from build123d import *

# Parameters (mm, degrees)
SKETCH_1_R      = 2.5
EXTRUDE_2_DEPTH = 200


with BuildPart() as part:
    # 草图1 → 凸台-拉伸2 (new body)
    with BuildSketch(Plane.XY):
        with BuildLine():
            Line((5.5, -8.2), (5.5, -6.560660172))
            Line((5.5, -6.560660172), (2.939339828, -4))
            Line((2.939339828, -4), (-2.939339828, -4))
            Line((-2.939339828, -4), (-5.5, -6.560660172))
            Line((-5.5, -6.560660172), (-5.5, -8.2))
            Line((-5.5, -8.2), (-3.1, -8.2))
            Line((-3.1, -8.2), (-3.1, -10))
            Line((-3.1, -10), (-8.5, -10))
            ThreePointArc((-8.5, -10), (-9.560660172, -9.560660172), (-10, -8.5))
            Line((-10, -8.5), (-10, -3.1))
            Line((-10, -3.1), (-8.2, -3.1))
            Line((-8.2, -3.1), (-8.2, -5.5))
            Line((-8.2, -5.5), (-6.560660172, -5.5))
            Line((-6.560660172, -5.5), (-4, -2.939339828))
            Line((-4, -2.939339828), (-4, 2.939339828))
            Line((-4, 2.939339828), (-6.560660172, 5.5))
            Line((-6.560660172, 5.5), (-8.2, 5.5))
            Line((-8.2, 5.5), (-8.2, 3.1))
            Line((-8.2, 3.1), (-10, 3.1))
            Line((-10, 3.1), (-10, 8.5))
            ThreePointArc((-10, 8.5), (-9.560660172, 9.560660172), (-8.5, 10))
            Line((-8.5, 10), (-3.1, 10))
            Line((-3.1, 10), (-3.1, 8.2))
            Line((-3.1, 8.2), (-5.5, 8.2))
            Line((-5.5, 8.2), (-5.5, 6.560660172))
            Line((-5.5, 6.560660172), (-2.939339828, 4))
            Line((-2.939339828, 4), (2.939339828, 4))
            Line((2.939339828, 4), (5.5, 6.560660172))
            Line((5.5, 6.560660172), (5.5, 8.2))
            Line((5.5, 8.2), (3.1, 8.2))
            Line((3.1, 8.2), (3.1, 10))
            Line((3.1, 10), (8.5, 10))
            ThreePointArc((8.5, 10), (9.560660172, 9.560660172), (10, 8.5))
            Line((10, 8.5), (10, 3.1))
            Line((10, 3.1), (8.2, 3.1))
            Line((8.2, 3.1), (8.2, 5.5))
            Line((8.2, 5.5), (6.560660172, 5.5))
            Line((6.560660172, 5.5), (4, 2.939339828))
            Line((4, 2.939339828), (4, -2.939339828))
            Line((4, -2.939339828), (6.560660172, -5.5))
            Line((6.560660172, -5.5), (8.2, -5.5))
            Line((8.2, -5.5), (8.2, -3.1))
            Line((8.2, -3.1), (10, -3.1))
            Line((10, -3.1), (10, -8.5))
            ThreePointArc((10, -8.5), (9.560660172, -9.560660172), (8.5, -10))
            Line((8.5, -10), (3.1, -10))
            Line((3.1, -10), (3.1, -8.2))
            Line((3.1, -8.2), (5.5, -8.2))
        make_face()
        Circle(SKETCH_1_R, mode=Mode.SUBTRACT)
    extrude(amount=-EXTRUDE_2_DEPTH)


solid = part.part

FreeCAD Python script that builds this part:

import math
import FreeCAD as App
import Part
import Sketcher

V = App.Vector

doc = App.newDocument("Part")
params = doc.addObject("Spreadsheet::Sheet", "Params")
for row, (alias, value) in enumerate([
    ("sketch1_diameter", "5 mm"),
    ("sketch1_radius", "1.5 mm"),
    ("sketch1_width", "2.4 mm"),
    ("sketch1_width2", "5.4 mm"),
    ("sketch1_width3", "1.8 mm"),
    ("pad1_length", "200 mm"),
], start=1):
    params.set(f"A{row}", alias)
    params.set(f"B{row}", "=" + value)
    params.setAlias(f"B{row}", alias)

body = doc.addObject("PartDesign::Body", "Body")

sketch1 = body.newObject("Sketcher::SketchObject", "Sketch")
sketch1.AttachmentSupport = (doc.getObject("XY_Plane"), [""])
sketch1.MapMode = "FlatFace"
sketch1.addGeometry(Part.LineSegment(V(5.5, -6.6, 0), V(5.5, -8.2, 0)), False)
sketch1.addGeometry(Part.LineSegment(V(5.5, -8.2, 0), V(3.1, -8.2, 0)), False)
sketch1.addGeometry(Part.LineSegment(V(3.1, -8.2, 0), V(3.1, -10, 0)), False)
sketch1.addGeometry(Part.LineSegment(V(3.1, -10, 0), V(8.5, -10, 0)), False)
sketch1.addGeometry(Part.ArcOfCircle(Part.Circle(V(8.5, -8.5, 0), V(0, 0, 1), 1.5), math.radians(-90), math.radians(0)), False)
sketch1.addGeometry(Part.LineSegment(V(10, -8.5, 0), V(10, -3.1, 0)), False)
sketch1.addGeometry(Part.LineSegment(V(10, -3.1, 0), V(8.2, -3.1, 0)), False)
sketch1.addGeometry(Part.LineSegment(V(8.2, -3.1, 0), V(8.2, -5.5, 0)), False)
sketch1.addGeometry(Part.LineSegment(V(8.2, -5.5, 0), V(6.6, -5.5, 0)), False)
sketch1.addGeometry(Part.LineSegment(V(6.6, -5.5, 0), V(4, -2.9, 0)), False)
sketch1.addGeometry(Part.LineSegment(V(4, -2.9, 0), V(4, 2.9, 0)), False)
sketch1.addGeometry(Part.LineSegment(V(4, 2.9, 0), V(6.6, 5.5, 0)), False)
sketch1.addGeometry(Part.LineSegment(V(6.6, 5.5, 0), V(8.2, 5.5, 0)), False)
sketch1.addGeometry(Part.LineSegment(V(8.2, 5.5, 0), V(8.2, 3.1, 0)), False)
sketch1.addGeometry(Part.LineSegment(V(8.2, 3.1, 0), V(10, 3.1, 0)), False)
sketch1.addGeometry(Part.LineSegment(V(10, 3.1, 0), V(10, 8.5, 0)), False)
sketch1.addGeometry(Part.ArcOfCircle(Part.Circle(V(8.5, 8.5, 0), V(0, 0, 1), 1.5), math.radians(0), math.radians(90)), False)
sketch1.addGeometry(Part.LineSegment(V(8.5, 10, 0), V(3.1, 10, 0)), False)
sketch1.addGeometry(Part.LineSegment(V(3.1, 10, 0), V(3.1, 8.2, 0)), False)
sketch1.addGeometry(Part.LineSegment(V(3.1, 8.2, 0), V(5.5, 8.2, 0)), False)
sketch1.addGeometry(Part.LineSegment(V(5.5, 8.2, 0), V(5.5, 6.6, 0)), False)
sketch1.addGeometry(Part.LineSegment(V(5.5, 6.6, 0), V(2.9, 4, 0)), False)
sketch1.addGeometry(Part.LineSegment(V(2.9, 4, 0), V(-2.9, 4, 0)), False)
sketch1.addGeometry(Part.LineSegment(V(-2.9, 4, 0), V(-5.5, 6.6, 0)), False)
sketch1.addGeometry(Part.LineSegment(V(-5.5, 6.6, 0), V(-5.5, 8.2, 0)), False)
sketch1.addGeometry(Part.LineSegment(V(-5.5, 8.2, 0), V(-3.1, 8.2, 0)), False)
sketch1.addGeometry(Part.LineSegment(V(-3.1, 8.2, 0), V(-3.1, 10, 0)), False)
sketch1.addGeometry(Part.LineSegment(V(-3.1, 10, 0), V(-8.5, 10, 0)), False)
sketch1.addGeometry(Part.ArcOfCircle(Part.Circle(V(-8.5, 8.5, 0), V(0, 0, 1), 1.5), math.radians(90), math.radians(180)), False)
sketch1.addGeometry(Part.LineSegment(V(-10, 8.5, 0), V(-10, 3.1, 0)), False)
sketch1.addGeometry(Part.LineSegment(V(-10, 3.1, 0), V(-8.2, 3.1, 0)), False)
sketch1.addGeometry(Part.LineSegment(V(-8.2, 3.1, 0), V(-8.2, 5.5, 0)), False)
sketch1.addGeometry(Part.LineSegment(V(-8.2, 5.5, 0), V(-6.6, 5.5, 0)), False)
sketch1.addGeometry(Part.LineSegment(V(-6.6, 5.5, 0), V(-4, 2.9, 0)), False)
sketch1.addGeometry(Part.LineSegment(V(-4, 2.9, 0), V(-4, -2.9, 0)), False)
sketch1.addGeometry(Part.LineSegment(V(-4, -2.9, 0), V(-6.6, -5.5, 0)), False)
sketch1.addGeometry(Part.LineSegment(V(-6.6, -5.5, 0), V(-8.2, -5.5, 0)), False)
sketch1.addGeometry(Part.LineSegment(V(-8.2, -5.5, 0), V(-8.2, -3.1, 0)), False)
sketch1.addGeometry(Part.LineSegment(V(-8.2, -3.1, 0), V(-10, -3.1, 0)), False)
sketch1.addGeometry(Part.LineSegment(V(-10, -3.1, 0), V(-10, -8.5, 0)), False)
sketch1.addGeometry(Part.ArcOfCircle(Part.Circle(V(-8.5, -8.5, 0), V(0, 0, 1), 1.5), math.radians(180), math.radians(270)), False)
sketch1.addGeometry(Part.LineSegment(V(-8.5, -10, 0), V(-3.1, -10, 0)), False)
sketch1.addGeometry(Part.LineSegment(V(-3.1, -10, 0), V(-3.1, -8.2, 0)), False)
sketch1.addGeometry(Part.LineSegment(V(-3.1, -8.2, 0), V(-5.5, -8.2, 0)), False)
sketch1.addGeometry(Part.LineSegment(V(-5.5, -8.2, 0), V(-5.5, -6.6, 0)), False)
sketch1.addGeometry(Part.LineSegment(V(-5.5, -6.6, 0), V(-2.9, -4, 0)), False)
sketch1.addGeometry(Part.LineSegment(V(-2.9, -4, 0), V(2.9, -4, 0)), False)
sketch1.addGeometry(Part.LineSegment(V(2.9, -4, 0), V(5.5, -6.6, 0)), False)
sketch1.addGeometry(Part.Circle(V(0, 0, 0), V(0, 0, 1), 2.5), False)
sketch1.addConstraint(Sketcher.Constraint("Coincident", 0, 2, 1, 1))
sketch1.addConstraint(Sketcher.Constraint("Coincident", 1, 2, 2, 1))
sketch1.addConstraint(Sketcher.Constraint("Coincident", 2, 2, 3, 1))
sketch1.addConstraint(Sketcher.Constraint("Tangent", 3, 2, 4, 1))
sketch1.addConstraint(Sketcher.Constraint("Tangent", 4, 2, 5, 1))
sketch1.addConstraint(Sketcher.Constraint("Coincident", 5, 2, 6, 1))
sketch1.addConstraint(Sketcher.Constraint("Coincident", 6, 2, 7, 1))
sketch1.addConstraint(Sketcher.Constraint("Coincident", 7, 2, 8, 1))
sketch1.addConstraint(Sketcher.Constraint("Coincident", 8, 2, 9, 1))
sketch1.addConstraint(Sketcher.Constraint("Coincident", 9, 2, 10, 1))
sketch1.addConstraint(Sketcher.Constraint("Coincident", 10, 2, 11, 1))
sketch1.addConstraint(Sketcher.Constraint("Coincident", 11, 2, 12, 1))
sketch1.addConstraint(Sketcher.Constraint("Coincident", 12, 2, 13, 1))
sketch1.addConstraint(Sketcher.Constraint("Coincident", 13, 2, 14, 1))
sketch1.addConstraint(Sketcher.Constraint("Coincident", 14, 2, 15, 1))
sketch1.addConstraint(Sketcher.Constraint("Tangent", 15, 2, 16, 1))
sketch1.addConstraint(Sketcher.Constraint("Tangent", 16, 2, 17, 1))
sketch1.addConstraint(Sketcher.Constraint("Coincident", 17, 2, 18, 1))
sketch1.addConstraint(Sketcher.Constraint("Coincident", 18, 2, 19, 1))
sketch1.addConstraint(Sketcher.Constraint("Coincident", 19, 2, 20, 1))
sketch1.addConstraint(Sketcher.Constraint("Coincident", 20, 2, 21, 1))
sketch1.addConstraint(Sketcher.Constraint("Coincident", 21, 2, 22, 1))
sketch1.addConstraint(Sketcher.Constraint("Coincident", 22, 2, 23, 1))
sketch1.addConstraint(Sketcher.Constraint("Coincident", 23, 2, 24, 1))
sketch1.addConstraint(Sketcher.Constraint("Coincident", 24, 2, 25, 1))
sketch1.addConstraint(Sketcher.Constraint("Coincident", 25, 2, 26, 1))
sketch1.addConstraint(Sketcher.Constraint("Coincident", 26, 2, 27, 1))
sketch1.addConstraint(Sketcher.Constraint("Tangent", 27, 2, 28, 1))
sketch1.addConstraint(Sketcher.Constraint("Tangent", 28, 2, 29, 1))
sketch1.addConstraint(Sketcher.Constraint("Coincident", 29, 2, 30, 1))
sketch1.addConstraint(Sketcher.Constraint("Coincident", 30, 2, 31, 1))
sketch1.addConstraint(Sketcher.Constraint("Coincident", 31, 2, 32, 1))
sketch1.addConstraint(Sketcher.Constraint("Coincident", 32, 2, 33, 1))
sketch1.addConstraint(Sketcher.Constraint("Coincident", 33, 2, 34, 1))
sketch1.addConstraint(Sketcher.Constraint("Coincident", 34, 2, 35, 1))
sketch1.addConstraint(Sketcher.Constraint("Coincident", 35, 2, 36, 1))
sketch1.addConstraint(Sketcher.Constraint("Coincident", 36, 2, 37, 1))
sketch1.addConstraint(Sketcher.Constraint("Coincident", 37, 2, 38, 1))
sketch1.addConstraint(Sketcher.Constraint("Coincident", 38, 2, 39, 1))
sketch1.addConstraint(Sketcher.Constraint("Tangent", 39, 2, 40, 1))
sketch1.addConstraint(Sketcher.Constraint("Tangent", 40, 2, 41, 1))
sketch1.addConstraint(Sketcher.Constraint("Coincident", 41, 2, 42, 1))
sketch1.addConstraint(Sketcher.Constraint("Coincident", 42, 2, 43, 1))
sketch1.addConstraint(Sketcher.Constraint("Coincident", 43, 2, 44, 1))
sketch1.addConstraint(Sketcher.Constraint("Coincident", 44, 2, 45, 1))
sketch1.addConstraint(Sketcher.Constraint("Coincident", 45, 2, 46, 1))
sketch1.addConstraint(Sketcher.Constraint("Coincident", 46, 2, 47, 1))
sketch1.addConstraint(Sketcher.Constraint("Coincident", 47, 2, 0, 1))
sketch1.addConstraint(Sketcher.Constraint("Vertical", 0))
sketch1.addConstraint(Sketcher.Constraint("Horizontal", 1))
sketch1.addConstraint(Sketcher.Constraint("Vertical", 2))
sketch1.addConstraint(Sketcher.Constraint("Horizontal", 3))
sketch1.addConstraint(Sketcher.Constraint("Vertical", 5))
sketch1.addConstraint(Sketcher.Constraint("Horizontal", 6))
sketch1.addConstraint(Sketcher.Constraint("Vertical", 7))
sketch1.addConstraint(Sketcher.Constraint("Horizontal", 8))
sketch1.addConstraint(Sketcher.Constraint("Vertical", 10))
sketch1.addConstraint(Sketcher.Constraint("Horizontal", 12))
sketch1.addConstraint(Sketcher.Constraint("Vertical", 13))
sketch1.addConstraint(Sketcher.Constraint("Horizontal", 14))
sketch1.addConstraint(Sketcher.Constraint("Vertical", 15))
sketch1.addConstraint(Sketcher.Constraint("Horizontal", 17))
sketch1.addConstraint(Sketcher.Constraint("Vertical", 18))
sketch1.addConstraint(Sketcher.Constraint("Horizontal", 19))
sketch1.addConstraint(Sketcher.Constraint("Vertical", 20))
sketch1.addConstraint(Sketcher.Constraint("Horizontal", 22))
sketch1.addConstraint(Sketcher.Constraint("Vertical", 24))
sketch1.addConstraint(Sketcher.Constraint("Horizontal", 25))
sketch1.addConstraint(Sketcher.Constraint("Vertical", 26))
sketch1.addConstraint(Sketcher.Constraint("Horizontal", 27))
sketch1.addConstraint(Sketcher.Constraint("Vertical", 29))
sketch1.addConstraint(Sketcher.Constraint("Horizontal", 30))
sketch1.addConstraint(Sketcher.Constraint("Vertical", 31))
sketch1.addConstraint(Sketcher.Constraint("Horizontal", 32))
sketch1.addConstraint(Sketcher.Constraint("Vertical", 34))
sketch1.addConstraint(Sketcher.Constraint("Horizontal", 36))
sketch1.addConstraint(Sketcher.Constraint("Vertical", 37))
sketch1.addConstraint(Sketcher.Constraint("Horizontal", 38))
sketch1.addConstraint(Sketcher.Constraint("Vertical", 39))
sketch1.addConstraint(Sketcher.Constraint("Horizontal", 41))
sketch1.addConstraint(Sketcher.Constraint("Vertical", 42))
sketch1.addConstraint(Sketcher.Constraint("Horizontal", 43))
sketch1.addConstraint(Sketcher.Constraint("Vertical", 44))
sketch1.addConstraint(Sketcher.Constraint("Horizontal", 46))
sketch1.addConstraint(Sketcher.Constraint("Coincident", 48, 3, -1, 1))
sketch1.addConstraint(Sketcher.Constraint("Equal", 4, 16))
sketch1.addConstraint(Sketcher.Constraint("Equal", 16, 28))
sketch1.addConstraint(Sketcher.Constraint("Equal", 28, 40))
sketch1.addConstraint(Sketcher.Constraint("Symmetric", 4, 3, 28, 3, -1, 1))
sketch1.addConstraint(Sketcher.Constraint("Symmetric", 16, 3, 40, 3, -1, 1))
sketch1.addConstraint(Sketcher.Constraint("Symmetric", 0, 2, 24, 2, -1, 1))
sketch1.addConstraint(Sketcher.Constraint("Symmetric", 6, 2, 30, 2, -1, 1))
sketch1.addConstraint(Sketcher.Constraint("Symmetric", 8, 2, 32, 2, -1, 1))
sketch1.addConstraint(Sketcher.Constraint("Symmetric", 9, 2, 33, 2, -1, 1))
sketch1.addConstraint(Sketcher.Constraint("Symmetric", 11, 2, 35, 2, -1, 1))
sketch1.addConstraint(Sketcher.Constraint("Symmetric", 13, 2, 37, 2, -1, 1))
sketch1.addConstraint(Sketcher.Constraint("Symmetric", 18, 2, 42, 2, -1, 1))
sketch1.addConstraint(Sketcher.Constraint("Symmetric", 20, 2, 44, 2, -1, 1))
sketch1.addConstraint(Sketcher.Constraint("Symmetric", 21, 2, 45, 2, -1, 1))
sketch1.addConstraint(Sketcher.Constraint("Symmetric", 16, 3, 28, 3, -2))
sketch1.addConstraint(Sketcher.Constraint("Symmetric", 20, 2, 23, 2, -2))
sketch1.addConstraint(Sketcher.Constraint("Symmetric", 18, 2, 25, 2, -2))
sketch1.addConstraint(Sketcher.Constraint("Symmetric", 13, 2, 30, 2, -2))
sketch1.addConstraint(Sketcher.Constraint("Symmetric", 11, 2, 32, 2, -2))
sketch1.addConstraint(Sketcher.Constraint("Perpendicular", 9, 11))
sketch1.addConstraint(Sketcher.Constraint("Parallel", 11, 21))
sketch1.addConstraint(Sketcher.Constraint("Perpendicular", 21, 23))
sketch1.addConstraint(Sketcher.Constraint("Perpendicular", 33, 35))
sketch1.addConstraint(Sketcher.Constraint("Perpendicular", 45, 47))
sketch1.addConstraint(Sketcher.Constraint("Horizontal", 10, 2, 33, 2))
sketch1.addConstraint(Sketcher.Constraint("Horizontal", 44, 2, 47, 2))
sketch1.addConstraint(Sketcher.Constraint("Vertical", 2, 2, 17, 2))
sketch1.addConstraint(Sketcher.Constraint("Equal", 36, 0))
sketch1.addConstraint(Sketcher.Constraint("Equal", 38, 2))
sketch1.addConstraint(Sketcher.Constraint("Equal", 41, 5))
sketch1.addConstraint(Sketcher.Constraint("Equal", 43, 7))
sketch1.addConstraint(Sketcher.Constraint("Equal", 46, 10))
sketch1.addConstraint(Sketcher.Constraint("Equal", 11, 21))
sketch1.addConstraint(Sketcher.Constraint("Diameter", 48, 5.0))
sketch1.addConstraint(Sketcher.Constraint("Radius", 4, 1.5))
sketch1.addConstraint(Sketcher.Constraint("DistanceX", 1, 2, 1, 1, 2.4))
sketch1.addConstraint(Sketcher.Constraint("DistanceX", 3, 1, 3, 2, 5.4))
sketch1.addConstraint(Sketcher.Constraint("DistanceX", 6, 2, 6, 1, 1.8))
sketch1.addConstraint(Sketcher.Constraint("DistanceY", 2, 2, -1, 1, 10.0))
sketch1.addConstraint(Sketcher.Constraint("DistanceX", -1, 1, 9, 2, 4.0))
sketch1.addConstraint(Sketcher.Constraint("DistanceX", 8, 2, 8, 1, 1.63934))
sketch1.setExpression("Constraints[118]", "Params.sketch1_diameter")
sketch1.setExpression("Constraints[119]", "Params.sketch1_radius")
sketch1.setExpression("Constraints[120]", "Params.sketch1_width")
sketch1.setExpression("Constraints[121]", "Params.sketch1_width2")
sketch1.setExpression("Constraints[122]", "Params.sketch1_width3")
pad1 = body.newObject("PartDesign::Pad", "Pad")
pad1.Profile = sketch1
pad1.setExpression("Length", "Params.pad1_length")
pad1.Reversed = True

doc.recompute()
